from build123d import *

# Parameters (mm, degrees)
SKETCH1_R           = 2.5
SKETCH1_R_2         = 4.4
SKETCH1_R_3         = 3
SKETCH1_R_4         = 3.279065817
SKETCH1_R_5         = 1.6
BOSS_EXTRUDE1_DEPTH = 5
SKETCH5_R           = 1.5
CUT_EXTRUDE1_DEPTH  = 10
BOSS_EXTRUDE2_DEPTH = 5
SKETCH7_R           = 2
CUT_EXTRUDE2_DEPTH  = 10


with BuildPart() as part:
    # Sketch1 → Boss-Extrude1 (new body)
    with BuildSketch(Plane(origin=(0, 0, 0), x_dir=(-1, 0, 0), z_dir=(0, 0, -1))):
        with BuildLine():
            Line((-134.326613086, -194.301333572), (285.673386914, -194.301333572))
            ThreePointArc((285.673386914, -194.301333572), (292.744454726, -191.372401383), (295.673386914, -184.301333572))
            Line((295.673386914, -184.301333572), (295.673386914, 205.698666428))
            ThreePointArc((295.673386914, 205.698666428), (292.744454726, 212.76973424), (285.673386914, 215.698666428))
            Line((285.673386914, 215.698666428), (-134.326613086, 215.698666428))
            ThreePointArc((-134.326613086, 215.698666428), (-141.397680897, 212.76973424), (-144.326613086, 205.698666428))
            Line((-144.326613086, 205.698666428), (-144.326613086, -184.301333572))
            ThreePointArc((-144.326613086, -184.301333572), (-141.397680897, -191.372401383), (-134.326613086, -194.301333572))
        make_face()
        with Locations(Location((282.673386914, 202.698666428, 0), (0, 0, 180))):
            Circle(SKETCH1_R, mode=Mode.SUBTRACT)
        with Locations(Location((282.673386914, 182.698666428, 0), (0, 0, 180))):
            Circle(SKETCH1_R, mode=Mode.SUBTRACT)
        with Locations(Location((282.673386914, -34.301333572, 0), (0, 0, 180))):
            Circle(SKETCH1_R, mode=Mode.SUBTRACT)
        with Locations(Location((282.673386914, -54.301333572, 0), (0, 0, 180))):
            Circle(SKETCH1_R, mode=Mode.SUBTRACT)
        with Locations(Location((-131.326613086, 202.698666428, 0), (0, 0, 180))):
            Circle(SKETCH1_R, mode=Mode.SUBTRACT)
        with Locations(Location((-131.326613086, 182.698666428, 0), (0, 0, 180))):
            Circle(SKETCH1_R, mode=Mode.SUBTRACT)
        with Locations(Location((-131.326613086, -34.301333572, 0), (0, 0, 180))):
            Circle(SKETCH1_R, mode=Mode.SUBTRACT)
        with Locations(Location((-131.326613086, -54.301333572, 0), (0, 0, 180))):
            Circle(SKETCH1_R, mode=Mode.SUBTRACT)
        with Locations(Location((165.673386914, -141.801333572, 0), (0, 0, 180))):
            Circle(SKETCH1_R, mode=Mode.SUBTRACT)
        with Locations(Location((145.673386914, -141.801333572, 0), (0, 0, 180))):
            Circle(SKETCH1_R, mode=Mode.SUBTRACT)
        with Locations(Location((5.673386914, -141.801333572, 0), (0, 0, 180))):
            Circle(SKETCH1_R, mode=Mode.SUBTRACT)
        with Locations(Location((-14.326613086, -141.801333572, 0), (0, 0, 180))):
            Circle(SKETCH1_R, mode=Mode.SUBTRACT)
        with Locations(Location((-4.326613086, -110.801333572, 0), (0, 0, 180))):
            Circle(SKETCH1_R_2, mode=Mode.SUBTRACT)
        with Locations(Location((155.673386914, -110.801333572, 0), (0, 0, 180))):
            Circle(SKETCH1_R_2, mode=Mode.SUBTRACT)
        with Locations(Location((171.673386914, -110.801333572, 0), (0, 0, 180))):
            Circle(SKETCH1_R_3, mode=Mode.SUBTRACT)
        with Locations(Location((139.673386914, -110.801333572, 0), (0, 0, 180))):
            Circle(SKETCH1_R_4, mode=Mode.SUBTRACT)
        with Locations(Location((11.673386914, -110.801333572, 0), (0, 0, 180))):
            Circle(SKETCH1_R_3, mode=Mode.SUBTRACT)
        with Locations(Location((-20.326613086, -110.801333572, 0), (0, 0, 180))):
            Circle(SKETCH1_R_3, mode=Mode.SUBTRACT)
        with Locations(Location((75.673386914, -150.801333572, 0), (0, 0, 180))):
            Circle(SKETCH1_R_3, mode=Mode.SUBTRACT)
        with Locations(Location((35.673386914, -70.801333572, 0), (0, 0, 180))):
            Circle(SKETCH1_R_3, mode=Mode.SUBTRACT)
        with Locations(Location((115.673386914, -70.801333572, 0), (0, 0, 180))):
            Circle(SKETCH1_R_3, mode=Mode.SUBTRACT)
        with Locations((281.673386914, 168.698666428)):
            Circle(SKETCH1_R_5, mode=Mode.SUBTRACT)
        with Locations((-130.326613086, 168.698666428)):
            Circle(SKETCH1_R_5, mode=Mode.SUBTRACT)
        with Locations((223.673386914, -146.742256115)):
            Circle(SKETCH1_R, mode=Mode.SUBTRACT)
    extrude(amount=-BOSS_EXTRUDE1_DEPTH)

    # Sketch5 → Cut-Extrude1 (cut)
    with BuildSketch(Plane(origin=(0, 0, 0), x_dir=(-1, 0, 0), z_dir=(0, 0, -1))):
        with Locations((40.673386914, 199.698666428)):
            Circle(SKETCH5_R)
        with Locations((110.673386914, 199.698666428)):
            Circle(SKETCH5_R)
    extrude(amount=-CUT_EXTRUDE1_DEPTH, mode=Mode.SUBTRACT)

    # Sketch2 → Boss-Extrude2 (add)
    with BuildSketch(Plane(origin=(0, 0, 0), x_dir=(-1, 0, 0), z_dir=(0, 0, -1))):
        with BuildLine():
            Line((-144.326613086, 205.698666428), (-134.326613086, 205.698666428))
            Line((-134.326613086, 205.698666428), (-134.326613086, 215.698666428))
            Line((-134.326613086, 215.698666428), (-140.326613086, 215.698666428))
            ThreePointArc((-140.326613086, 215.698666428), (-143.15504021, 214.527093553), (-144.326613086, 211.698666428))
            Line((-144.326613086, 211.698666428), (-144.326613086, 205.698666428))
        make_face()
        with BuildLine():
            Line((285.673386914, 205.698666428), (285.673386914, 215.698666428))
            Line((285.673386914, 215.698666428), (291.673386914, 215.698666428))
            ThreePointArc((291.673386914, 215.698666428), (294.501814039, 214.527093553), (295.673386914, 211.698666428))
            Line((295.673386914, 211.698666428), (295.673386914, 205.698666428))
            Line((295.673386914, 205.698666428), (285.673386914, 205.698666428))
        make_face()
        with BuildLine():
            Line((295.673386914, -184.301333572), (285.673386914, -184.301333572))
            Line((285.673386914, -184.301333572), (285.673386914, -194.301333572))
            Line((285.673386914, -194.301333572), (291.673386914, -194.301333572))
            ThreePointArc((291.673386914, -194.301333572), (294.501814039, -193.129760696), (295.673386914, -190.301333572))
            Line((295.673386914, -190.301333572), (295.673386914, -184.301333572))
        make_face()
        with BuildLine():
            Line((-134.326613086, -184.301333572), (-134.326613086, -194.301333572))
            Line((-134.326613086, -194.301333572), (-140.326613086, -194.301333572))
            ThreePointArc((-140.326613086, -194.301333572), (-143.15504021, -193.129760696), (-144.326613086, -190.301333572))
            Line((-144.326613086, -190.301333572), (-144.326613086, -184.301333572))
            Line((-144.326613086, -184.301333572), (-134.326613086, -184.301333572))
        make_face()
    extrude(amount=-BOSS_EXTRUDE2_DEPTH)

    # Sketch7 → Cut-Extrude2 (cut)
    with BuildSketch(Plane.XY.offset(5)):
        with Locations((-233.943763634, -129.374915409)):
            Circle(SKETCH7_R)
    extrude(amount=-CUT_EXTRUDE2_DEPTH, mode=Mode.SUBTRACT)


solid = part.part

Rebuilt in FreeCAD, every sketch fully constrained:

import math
import FreeCAD as App
import Part
import Sketcher
from FreeCAD import Vector
Q = App.Units.Quantity

doc = App.newDocument("Part")
params = doc.addObject("Spreadsheet::Sheet", "Params")
for row, (alias, value) in enumerate([
    ("sketch1_diameter", "5 mm"),
    ("sketch1_diameter2", "6 mm"),
    ("sketch1_radius", "10 mm"),
    ("sketch1_diameter3", "8.8 mm"),
    ("sketch1_diameter4", "3.2 mm"),
    ("pad1_length", "5 mm"),
    ("sketch2_diameter", "3 mm"),
    ("pocket1_length", "10 mm"),
    ("sketch3_radius", "4 mm"),
    ("sketch3_width", "10 mm"),
    ("pad2_length", "5 mm"),
    ("sketch4_diameter", "4 mm"),
    ("pocket2_length", "10 mm"),
], start=1):
    params.set(f"A{row}", alias)
    params.set(f"B{row}", "=" + value)
    params.setAlias(f"B{row}", alias)

body = doc.addObject("PartDesign::Body", "Body")

sketch1 = body.newObject("Sketcher::SketchObject", "Sketch")
sketch1.AttachmentSupport = (doc.getObject("XY_Plane"), [""])
sketch1.MapMode = "FlatFace"
sketch1.addGeometry([
    Part.LineSegment(Vector(134.3, -194.3, 0), Vector(-285.7, -194.3, 0)),
    Part.ArcOfCircle(Part.Circle(Vector(-285.7, -184.3, 0), Vector(0, 0, 1), 10), math.radians(-180), math.radians(-90)),
    Part.LineSegment(Vector(-295.7, -184.3, 0), Vector(-295.7, 205.7, 0)),
    Part.ArcOfCircle(Part.Circle(Vector(-285.7, 205.7, 0), Vector(0, 0, 1), 10), math.radians(90), math.radians(180)),
    Part.LineSegment(Vector(-285.7, 215.7, 0), Vector(134.3, 215.7, 0)),
    Part.ArcOfCircle(Part.Circle(Vector(134.3, 205.7, 0), Vector(0, 0, 1), 10), math.radians(0), math.radians(90)),
    Part.LineSegment(Vector(144.3, 205.7, 0), Vector(144.3, -184.3, 0)),
    Part.ArcOfCircle(Part.Circle(Vector(134.3, -184.3, 0), Vector(0, 0, 1), 10), math.radians(-90), math.radians(0)),
    Part.Circle(Vector(14.3, -141.8, 0), Vector(0, 0, 1), 2.5),
    Part.Circle(Vector(-5.7, -141.8, 0), Vector(0, 0, 1), 2.5),
    Part.Circle(Vector(20.3, -110.8, 0), Vector(0, 0, 1), 3),
    Part.Circle(Vector(4.3, -110.8, 0), Vector(0, 0, 1), 4.4),
    Part.Circle(Vector(-11.7, -110.8, 0), Vector(0, 0, 1), 3),
    Part.Circle(Vector(-35.7, -70.8, 0), Vector(0, 0, 1), 3),
    Part.Circle(Vector(131.3, -54.3, 0), Vector(0, 0, 1), 2.5),
    Part.Circle(Vector(131.3, -34.3, 0), Vector(0, 0, 1), 2.5),
    Part.Circle(Vector(-75.7, -150.8, 0), Vector(0, 0, 1), 3),
    Part.Circle(Vector(-145.7, -141.8, 0), Vector(0, 0, 1), 2.5),
    Part.Circle(Vector(-165.7, -141.8, 0), Vector(0, 0, 1), 2.5),
    Part.Circle(Vector(-139.7, -110.8, 0), Vector(0, 0, 1), 3.3),
    Part.Circle(Vector(-155.7, -110.8, 0), Vector(0, 0, 1), 4.4),
    Part.Circle(Vector(-171.7, -110.8, 0), Vector(0, 0, 1), 3),
    Part.Circle(Vector(-115.7, -70.8, 0), Vector(0, 0, 1), 3),
    Part.Circle(Vector(-223.7, -146.7, 0), Vector(0, 0, 1), 2.5),
    Part.Circle(Vector(-282.7, -54.3, 0), Vector(0, 0, 1), 2.5),
    Part.Circle(Vector(-282.7, -34.3, 0), Vector(0, 0, 1), 2.5),
    Part.Circle(Vector(130.3, 168.7, 0), Vector(0, 0, 1), 1.6),
    Part.Circle(Vector(131.3, 182.7, 0), Vector(0, 0, 1), 2.5),
    Part.Circle(Vector(131.3, 202.7, 0), Vector(0, 0, 1), 2.5),
    Part.Circle(Vector(-281.7, 168.7, 0), Vector(0, 0, 1), 1.6),
    Part.Circle(Vector(-282.7, 182.7, 0), Vector(0, 0, 1), 2.5),
    Part.Circle(Vector(-282.7, 202.7, 0), Vector(0, 0, 1), 2.5),
], False)
sketch1.addConstraint([
    Sketcher.Constraint("Tangent", 0, 2, 1, 2),
    Sketcher.Constraint("Tangent", 1, 1, 2, 1),
    Sketcher.Constraint("Tangent", 2, 2, 3, 2),
    Sketcher.Constraint("Tangent", 3, 1, 4, 1),
    Sketcher.Constraint("Tangent", 4, 2, 5, 2),
    Sketcher.Constraint("Tangent", 5, 1, 6, 1),
    Sketcher.Constraint("Tangent", 6, 2, 7, 2),
    Sketcher.Constraint("Tangent", 7, 1, 0, 1),
    Sketcher.Constraint("Horizontal", 0),
    Sketcher.Constraint("Vertical", 2),
    Sketcher.Constraint("Horizontal", 4),
    Sketcher.Constraint("Vertical", 6),
    Sketcher.Constraint("Equal", 1, 3),
    Sketcher.Constraint("Equal", 3, 5),
    Sketcher.Constraint("Equal", 5, 7),
    Sketcher.Constraint("Equal", 8, 9),
    Sketcher.Constraint("Equal", 10, 12),
    Sketcher.Constraint("Equal", 12, 13),
    Sketcher.Constraint("Equal", 9, 14),
    Sketcher.Constraint("Equal", 14, 15),
    Sketcher.Constraint("Equal", 13, 16),
    Sketcher.Constraint("Equal", 15, 17),
    Sketcher.Constraint("Equal", 17, 18),
    Sketcher.Constraint("Equal", 11, 20),
    Sketcher.Constraint("Equal", 16, 21),
    Sketcher.Constraint("Equal", 21, 22),
    Sketcher.Constraint("Equal", 18, 23),
    Sketcher.Constraint("Equal", 23, 24),
    Sketcher.Constraint("Equal", 24, 25),
    Sketcher.Constraint("Equal", 25, 27),
    Sketcher.Constraint("Equal", 27, 28),
    Sketcher.Constraint("Equal", 26, 29),
    Sketcher.Constraint("Equal", 28, 30),
    Sketcher.Constraint("Equal", 30, 31),
    Sketcher.Constraint("Horizontal", 8, 3, 9, 3),
    Sketcher.Constraint("Horizontal", 10, 3, 11, 3),
    Sketcher.Constraint("Horizontal", 11, 3, 12, 3),
    Sketcher.Constraint("Horizontal", 9, 3, 17, 3),
    Sketcher.Constraint("Horizontal", 17, 3, 18, 3),
    Sketcher.Constraint("Horizontal", 12, 3, 19, 3),
    Sketcher.Constraint("Horizontal", 19, 3, 20, 3),
    Sketcher.Constraint("Horizontal", 20, 3, 21, 3),
    Sketcher.Constraint("Horizontal", 13, 3, 22, 3),
    Sketcher.Constraint("Horizontal", 14, 3, 24, 3),
    Sketcher.Constraint("Horizontal", 15, 3, 25, 3),
    Sketcher.Constraint("Horizontal", 26, 3, 29, 3),
    Sketcher.Constraint("Horizontal", 27, 3, 30, 3),
    Sketcher.Constraint("Horizontal", 28, 3, 31, 3),
    Sketcher.Constraint("Vertical", 14, 3, 15, 3),
    Sketcher.Constraint("Vertical", 24, 3, 25, 3),
    Sketcher.Constraint("Vertical", 15, 3, 27, 3),
    Sketcher.Constraint("Vertical", 27, 3, 28, 3),
    Sketcher.Constraint("Vertical", 25, 3, 30, 3),
    Sketcher.Constraint("Vertical", 30, 3, 31, 3),
    Sketcher.Constraint("Diameter", 8, Q("5 mm")),
    Sketcher.Constraint("Diameter", 10, Q("6 mm")),
    Sketcher.Constraint("Radius", 1, Q("10 mm")),
    Sketcher.Constraint("Diameter", 11, Q("8.8 mm")),
    Sketcher.Constraint("Diameter", 26, Q("3.2 mm")),
    Sketcher.Constraint("DistanceX", 0, 2, 0, 1, Q("420 mm")),
    Sketcher.Constraint("DistanceY", 2, 1, 2, 2, Q("390 mm")),
    Sketcher.Constraint("DistanceX", 8, 3, 7, 3, Q("120 mm")),
    Sketcher.Constraint("DistanceX", 9, 3, 8, 3, Q("20 mm")),
    Sketcher.Constraint("DistanceX", 8, 3, 10, 3, Q("6 mm")),
    Sketcher.Constraint("DistanceY", 8, 3, 10, 3, Q("31 mm")),
    Sketcher.Constraint("DistanceX", 11, 3, 10, 3, Q("16 mm")),
    Sketcher.Constraint("DistanceX", 12, 3, 11, 3, Q("16 mm")),
    Sketcher.Constraint("DistanceX", 13, 3, 12, 3, Q("24 mm")),
    Sketcher.Constraint("DistanceY", 12, 3, 13, 3, Q("40 mm")),
    Sketcher.Constraint("DistanceX", 10, 3, 14, 3, Q("111 mm")),
    Sketcher.Constraint("DistanceY", 7, 3, 14, 3, Q("130 mm")),
    Sketcher.Constraint("DistanceY", 14, 3, 15, 3, Q("20 mm")),
    Sketcher.Constraint("DistanceX", 16, 3, 9, 3, Q("70 mm")),
    Sketcher.Constraint("DistanceY", 16, 3, 9, 3, Q("9 mm")),
    Sketcher.Constraint("DistanceX", 17, 3, 16, 3, Q("70 mm")),
    Sketcher.Constraint("DistanceX", 18, 3, 17, 3, Q("20 mm")),
    Sketcher.Constraint("DistanceX", 17, 3, 19, 3, Q("6 mm")),
    Sketcher.Constraint("DistanceX", 20, 3, 19, 3, Q("16 mm")),
    Sketcher.Constraint("DistanceX", 21, 3, 20, 3, Q("16 mm")),
    Sketcher.Constraint("DistanceX", 19, 3, 22, 3, Q("24 mm")),
    Sketcher.Constraint("DistanceX", 23, 3, 18, 3, Q("58 mm")),
    Sketcher.Constraint("DistanceX", 24, 3, 23, 3, Q("59 mm")),
    Sketcher.Constraint("DistanceX", 26, 3, 5, 3, Q("4 mm")),
    Sketcher.Constraint("DistanceY", 26, 3, 5, 3, Q("37 mm")),
    Sketcher.Constraint("DistanceY", 26, 3, 27, 3, Q("14 mm")),
    Sketcher.Constraint("DistanceY", 28, 3, 5, 3, Q("3 mm")),
    Sketcher.Constraint("DistanceX", 3, 3, 29, 3, Q("4 mm")),
    Sketcher.Constraint("DistanceY", 7, 3, 8, 3, Q("42.5 mm")),
    Sketcher.Constraint("Diameter", 19, Q("6.558132 mm")),
    Sketcher.Constraint("DistanceX", 1, 3, -1, 1, Q("285.673387 mm")),
    Sketcher.Constraint("DistanceY", 1, 3, -1, 1, Q("184.301334 mm")),
    Sketcher.Constraint("DistanceY", 23, 3, -1, 1, Q("146.742256 mm")),
])
sketch1.setExpression("Constraints[54]", "Params.sketch1_diameter")
sketch1.setExpression("Constraints[55]", "Params.sketch1_diameter2")
sketch1.setExpression("Constraints[56]", "Params.sketch1_radius")
sketch1.setExpression("Constraints[57]", "Params.sketch1_diameter3")
sketch1.setExpression("Constraints[58]", "Params.sketch1_diameter4")
pad1 = body.newObject("PartDesign::Pad", "Pad")
pad1.Profile = sketch1
pad1.setExpression("Length", "Params.pad1_length")

sketch2 = body.newObject("Sketcher::SketchObject", "Sketch001")
sketch2.AttachmentSupport = (doc.getObject("XY_Plane"), [""])
sketch2.MapMode = "FlatFace"
sketch2.addGeometry([
    Part.Circle(Vector(-40.7, 199.7, 0), Vector(0, 0, 1), 1.5),
    Part.Circle(Vector(-110.7, 199.7, 0), Vector(0, 0, 1), 1.5),
], False)
sketch2.addConstraint([
    Sketcher.Constraint("Equal", 0, 1),
    Sketcher.Constraint("Horizontal", 0, 3, 1, 3),
    Sketcher.Constraint("Diameter", 0, Q("3 mm")),
    Sketcher.Constraint("DistanceX", 1, 3, 0, 3, Q("70 mm")),
    Sketcher.Constraint("DistanceX", 0, 3, -1, 1, Q("40.673387 mm")),
    Sketcher.Constraint("DistanceY", -1, 1, 0, 3, Q("199.698666 mm")),
])
sketch2.setExpression("Constraints[2]", "Params.sketch2_diameter")
pocket1 = body.newObject("PartDesign::Pocket", "Pocket")
pocket1.Profile = sketch2
pocket1.setExpression("Length", "Params.pocket1_length")
pocket1.Reversed = True

sketch3 = body.newObject("Sketcher::SketchObject", "Sketch002")
sketch3.AttachmentSupport = (doc.getObject("XY_Plane"), [""])
sketch3.MapMode = "FlatFace"
sketch3.addGeometry([
    Part.LineSegment(Vector(144.3, 205.7, 0), Vector(134.3, 205.7, 0)),
    Part.LineSegment(Vector(134.3, 205.7, 0), Vector(134.3, 215.7, 0)),
    Part.LineSegment(Vector(134.3, 215.7, 0), Vector(140.3, 215.7, 0)),
    Part.ArcOfCircle(Part.Circle(Vector(140.3, 211.7, 0), Vector(0, 0, 1), 4), math.radians(0), math.radians(90)),
    Part.LineSegment(Vector(144.3, 211.7, 0), Vector(144.3, 205.7, 0)),
    Part.LineSegment(Vector(-285.7, 215.7, 0), Vector(-285.7, 205.7, 0)),
    Part.LineSegment(Vector(-285.7, 205.7, 0), Vector(-295.7, 205.7, 0)),
    Part.LineSegment(Vector(-295.7, 205.7, 0), Vector(-295.7, 211.7, 0)),
    Part.ArcOfCircle(Part.Circle(Vector(-291.7, 211.7, 0), Vector(0, 0, 1), 4), math.radians(90), math.radians(180)),
    Part.LineSegment(Vector(-291.7, 215.7, 0), Vector(-285.7, 215.7, 0)),
    Part.LineSegment(Vector(-295.7, -184.3, 0), Vector(-285.7, -184.3, 0)),
    Part.LineSegment(Vector(-285.7, -184.3, 0), Vector(-285.7, -194.3, 0)),
    Part.LineSegment(Vector(-285.7, -194.3, 0), Vector(-291.7, -194.3, 0)),
    Part.ArcOfCircle(Part.Circle(Vector(-291.7, -190.3, 0), Vector(0, 0, 1), 4), math.radians(-180), math.radians(-90)),
    Part.LineSegment(Vector(-295.7, -190.3, 0), Vector(-295.7, -184.3, 0)),
    Part.LineSegment(Vector(134.3, -194.3, 0), Vector(134.3, -184.3, 0)),
    Part.LineSegment(Vector(134.3, -184.3, 0), Vector(144.3, -184.3, 0)),
    Part.LineSegment(Vector(144.3, -184.3, 0), Vector(144.3, -190.3, 0)),
    Part.ArcOfCircle(Part.Circle(Vector(140.3, -190.3, 0), Vector(0, 0, 1), 4), math.radians(-90), math.radians(0)),
    Part.LineSegment(Vector(140.3, -194.3, 0), Vector(134.3, -194.3, 0)),
], False)
sketch3.addConstraint([
    Sketcher.Constraint("Coincident", 0, 2, 1, 1),
    Sketcher.Constraint("Coincident", 1, 2, 2, 1),
    Sketcher.Constraint("Tangent", 2, 2, 3, 2),
    Sketcher.Constraint("Tangent", 3, 1, 4, 1),
    Sketcher.Constraint("Coincident", 4, 2, 0, 1),
    Sketcher.Constraint("Coincident", 5, 2, 6, 1),
    Sketcher.Constraint("Coincident", 6, 2, 7, 1),
    Sketcher.Constraint("Tangent", 7, 2, 8, 2),
    Sketcher.Constraint("Tangent", 8, 1, 9, 1),
    Sketcher.Constraint("Coincident", 9, 2, 5, 1),
    Sketcher.Constraint("Coincident", 10, 2, 11, 1),
    Sketcher.Constraint("Coincident", 11, 2, 12, 1),
    Sketcher.Constraint("Tangent", 12, 2, 13, 2),
    Sketcher.Constraint("Tangent", 13, 1, 14, 1),
    Sketcher.Constraint("Coincident", 14, 2, 10, 1),
    Sketcher.Constraint("Coincident", 15, 2, 16, 1),
    Sketcher.Constraint("Coincident", 16, 2, 17, 1),
    Sketcher.Constraint("Tangent", 17, 2, 18, 2),
    Sketcher.Constraint("Tangent", 18, 1, 19, 1),
    Sketcher.Constraint("Coincident", 19, 2, 15, 1),
    Sketcher.Constraint("Horizontal", 0),
    Sketcher.Constraint("Vertical", 1),
    Sketcher.Constraint("Horizontal", 2),
    Sketcher.Constraint("Vertical", 4),
    Sketcher.Constraint("Vertical", 5),
    Sketcher.Constraint("Horizontal", 6),
    Sketcher.Constraint("Vertical", 7),
    Sketcher.Constraint("Horizontal", 9),
    Sketcher.Constraint("Horizontal", 10),
    Sketcher.Constraint("Vertical", 11),
    Sketcher.Constraint("Horizontal", 12),
    Sketcher.Constraint("Vertical", 14),
    Sketcher.Constraint("Vertical", 15),
    Sketcher.Constraint("Horizontal", 16),
    Sketcher.Constraint("Vertical", 17),
    Sketcher.Constraint("Horizontal", 19),
    Sketcher.Constraint("Equal", 3, 8),
    Sketcher.Constraint("Equal", 8, 13),
    Sketcher.Constraint("Equal", 13, 18),
    Sketcher.Constraint("Horizontal", 3, 3, 8, 3),
    Sketcher.Constraint("Horizontal", 13, 3, 18, 3),
    Sketcher.Constraint("Horizontal", 4, 2, 5, 2),
    Sketcher.Constraint("Horizontal", 14, 2, 15, 2),
    Sketcher.Constraint("Vertical", 8, 3, 13, 3),
    Sketcher.Constraint("Vertical", 3, 3, 18, 3),
    Sketcher.Constraint("Vertical", 9, 2, 10, 2),
    Sketcher.Constraint("Vertical", 1, 2, 15, 2),
    Sketcher.Constraint("Equal", 0, 6),
    Sketcher.Constraint("Equal", 16, 1),
    Sketcher.Constraint("Equal", 5, 11),
    Sketcher.Constraint("Radius", 3, Q("4 mm")),
    Sketcher.Constraint("DistanceX", 0, 2, 0, 1, Q("10 mm")),
    Sketcher.Constraint("DistanceX", 8, 3, 3, 3, Q("432 mm")),
    Sketcher.Constraint("DistanceY", 13, 3, 8, 3, Q("402 mm")),
    Sketcher.Constraint("DistanceX", -1, 1, 3, 3, Q("140.326613 mm")),
    Sketcher.Constraint("DistanceY", -1, 1, 3, 3, Q("211.698666 mm")),
])
sketch3.setExpression("Constraints[50]", "Params.sketch3_radius")
sketch3.setExpression("Constraints[51]", "Params.sketch3_width")
pad2 = body.newObject("PartDesign::Pad", "Pad001")
pad2.Profile = sketch3
pad2.setExpression("Length", "Params.pad2_length")

sketch4 = body.newObject("Sketcher::SketchObject", "Sketch003")
sketch4.AttachmentSupport = (doc.getObject("XY_Plane"), [""])
sketch4.MapMode = "FlatFace"
sketch4.AttachmentOffset = App.Placement(Vector(0, 0, 5), App.Rotation())
sketch4.addGeometry(Part.Circle(Vector(-233.9, -129.4, 0), Vector(0, 0, 1), 2), False)
sketch4.addConstraint([
    Sketcher.Constraint("Diameter", 0, Q("4 mm")),
    Sketcher.Constraint("DistanceX", 0, 3, -1, 1, Q("233.943764 mm")),
    Sketcher.Constraint("DistanceY", 0, 3, -1, 1, Q("129.374915 mm")),
])
sketch4.setExpression("Constraints[0]", "Params.sketch4_diameter")
pocket2 = body.newObject("PartDesign::Pocket", "Pocket001")
pocket2.Profile = sketch4
pocket2.setExpression("Length", "Params.pocket2_length")

doc.recompute()
